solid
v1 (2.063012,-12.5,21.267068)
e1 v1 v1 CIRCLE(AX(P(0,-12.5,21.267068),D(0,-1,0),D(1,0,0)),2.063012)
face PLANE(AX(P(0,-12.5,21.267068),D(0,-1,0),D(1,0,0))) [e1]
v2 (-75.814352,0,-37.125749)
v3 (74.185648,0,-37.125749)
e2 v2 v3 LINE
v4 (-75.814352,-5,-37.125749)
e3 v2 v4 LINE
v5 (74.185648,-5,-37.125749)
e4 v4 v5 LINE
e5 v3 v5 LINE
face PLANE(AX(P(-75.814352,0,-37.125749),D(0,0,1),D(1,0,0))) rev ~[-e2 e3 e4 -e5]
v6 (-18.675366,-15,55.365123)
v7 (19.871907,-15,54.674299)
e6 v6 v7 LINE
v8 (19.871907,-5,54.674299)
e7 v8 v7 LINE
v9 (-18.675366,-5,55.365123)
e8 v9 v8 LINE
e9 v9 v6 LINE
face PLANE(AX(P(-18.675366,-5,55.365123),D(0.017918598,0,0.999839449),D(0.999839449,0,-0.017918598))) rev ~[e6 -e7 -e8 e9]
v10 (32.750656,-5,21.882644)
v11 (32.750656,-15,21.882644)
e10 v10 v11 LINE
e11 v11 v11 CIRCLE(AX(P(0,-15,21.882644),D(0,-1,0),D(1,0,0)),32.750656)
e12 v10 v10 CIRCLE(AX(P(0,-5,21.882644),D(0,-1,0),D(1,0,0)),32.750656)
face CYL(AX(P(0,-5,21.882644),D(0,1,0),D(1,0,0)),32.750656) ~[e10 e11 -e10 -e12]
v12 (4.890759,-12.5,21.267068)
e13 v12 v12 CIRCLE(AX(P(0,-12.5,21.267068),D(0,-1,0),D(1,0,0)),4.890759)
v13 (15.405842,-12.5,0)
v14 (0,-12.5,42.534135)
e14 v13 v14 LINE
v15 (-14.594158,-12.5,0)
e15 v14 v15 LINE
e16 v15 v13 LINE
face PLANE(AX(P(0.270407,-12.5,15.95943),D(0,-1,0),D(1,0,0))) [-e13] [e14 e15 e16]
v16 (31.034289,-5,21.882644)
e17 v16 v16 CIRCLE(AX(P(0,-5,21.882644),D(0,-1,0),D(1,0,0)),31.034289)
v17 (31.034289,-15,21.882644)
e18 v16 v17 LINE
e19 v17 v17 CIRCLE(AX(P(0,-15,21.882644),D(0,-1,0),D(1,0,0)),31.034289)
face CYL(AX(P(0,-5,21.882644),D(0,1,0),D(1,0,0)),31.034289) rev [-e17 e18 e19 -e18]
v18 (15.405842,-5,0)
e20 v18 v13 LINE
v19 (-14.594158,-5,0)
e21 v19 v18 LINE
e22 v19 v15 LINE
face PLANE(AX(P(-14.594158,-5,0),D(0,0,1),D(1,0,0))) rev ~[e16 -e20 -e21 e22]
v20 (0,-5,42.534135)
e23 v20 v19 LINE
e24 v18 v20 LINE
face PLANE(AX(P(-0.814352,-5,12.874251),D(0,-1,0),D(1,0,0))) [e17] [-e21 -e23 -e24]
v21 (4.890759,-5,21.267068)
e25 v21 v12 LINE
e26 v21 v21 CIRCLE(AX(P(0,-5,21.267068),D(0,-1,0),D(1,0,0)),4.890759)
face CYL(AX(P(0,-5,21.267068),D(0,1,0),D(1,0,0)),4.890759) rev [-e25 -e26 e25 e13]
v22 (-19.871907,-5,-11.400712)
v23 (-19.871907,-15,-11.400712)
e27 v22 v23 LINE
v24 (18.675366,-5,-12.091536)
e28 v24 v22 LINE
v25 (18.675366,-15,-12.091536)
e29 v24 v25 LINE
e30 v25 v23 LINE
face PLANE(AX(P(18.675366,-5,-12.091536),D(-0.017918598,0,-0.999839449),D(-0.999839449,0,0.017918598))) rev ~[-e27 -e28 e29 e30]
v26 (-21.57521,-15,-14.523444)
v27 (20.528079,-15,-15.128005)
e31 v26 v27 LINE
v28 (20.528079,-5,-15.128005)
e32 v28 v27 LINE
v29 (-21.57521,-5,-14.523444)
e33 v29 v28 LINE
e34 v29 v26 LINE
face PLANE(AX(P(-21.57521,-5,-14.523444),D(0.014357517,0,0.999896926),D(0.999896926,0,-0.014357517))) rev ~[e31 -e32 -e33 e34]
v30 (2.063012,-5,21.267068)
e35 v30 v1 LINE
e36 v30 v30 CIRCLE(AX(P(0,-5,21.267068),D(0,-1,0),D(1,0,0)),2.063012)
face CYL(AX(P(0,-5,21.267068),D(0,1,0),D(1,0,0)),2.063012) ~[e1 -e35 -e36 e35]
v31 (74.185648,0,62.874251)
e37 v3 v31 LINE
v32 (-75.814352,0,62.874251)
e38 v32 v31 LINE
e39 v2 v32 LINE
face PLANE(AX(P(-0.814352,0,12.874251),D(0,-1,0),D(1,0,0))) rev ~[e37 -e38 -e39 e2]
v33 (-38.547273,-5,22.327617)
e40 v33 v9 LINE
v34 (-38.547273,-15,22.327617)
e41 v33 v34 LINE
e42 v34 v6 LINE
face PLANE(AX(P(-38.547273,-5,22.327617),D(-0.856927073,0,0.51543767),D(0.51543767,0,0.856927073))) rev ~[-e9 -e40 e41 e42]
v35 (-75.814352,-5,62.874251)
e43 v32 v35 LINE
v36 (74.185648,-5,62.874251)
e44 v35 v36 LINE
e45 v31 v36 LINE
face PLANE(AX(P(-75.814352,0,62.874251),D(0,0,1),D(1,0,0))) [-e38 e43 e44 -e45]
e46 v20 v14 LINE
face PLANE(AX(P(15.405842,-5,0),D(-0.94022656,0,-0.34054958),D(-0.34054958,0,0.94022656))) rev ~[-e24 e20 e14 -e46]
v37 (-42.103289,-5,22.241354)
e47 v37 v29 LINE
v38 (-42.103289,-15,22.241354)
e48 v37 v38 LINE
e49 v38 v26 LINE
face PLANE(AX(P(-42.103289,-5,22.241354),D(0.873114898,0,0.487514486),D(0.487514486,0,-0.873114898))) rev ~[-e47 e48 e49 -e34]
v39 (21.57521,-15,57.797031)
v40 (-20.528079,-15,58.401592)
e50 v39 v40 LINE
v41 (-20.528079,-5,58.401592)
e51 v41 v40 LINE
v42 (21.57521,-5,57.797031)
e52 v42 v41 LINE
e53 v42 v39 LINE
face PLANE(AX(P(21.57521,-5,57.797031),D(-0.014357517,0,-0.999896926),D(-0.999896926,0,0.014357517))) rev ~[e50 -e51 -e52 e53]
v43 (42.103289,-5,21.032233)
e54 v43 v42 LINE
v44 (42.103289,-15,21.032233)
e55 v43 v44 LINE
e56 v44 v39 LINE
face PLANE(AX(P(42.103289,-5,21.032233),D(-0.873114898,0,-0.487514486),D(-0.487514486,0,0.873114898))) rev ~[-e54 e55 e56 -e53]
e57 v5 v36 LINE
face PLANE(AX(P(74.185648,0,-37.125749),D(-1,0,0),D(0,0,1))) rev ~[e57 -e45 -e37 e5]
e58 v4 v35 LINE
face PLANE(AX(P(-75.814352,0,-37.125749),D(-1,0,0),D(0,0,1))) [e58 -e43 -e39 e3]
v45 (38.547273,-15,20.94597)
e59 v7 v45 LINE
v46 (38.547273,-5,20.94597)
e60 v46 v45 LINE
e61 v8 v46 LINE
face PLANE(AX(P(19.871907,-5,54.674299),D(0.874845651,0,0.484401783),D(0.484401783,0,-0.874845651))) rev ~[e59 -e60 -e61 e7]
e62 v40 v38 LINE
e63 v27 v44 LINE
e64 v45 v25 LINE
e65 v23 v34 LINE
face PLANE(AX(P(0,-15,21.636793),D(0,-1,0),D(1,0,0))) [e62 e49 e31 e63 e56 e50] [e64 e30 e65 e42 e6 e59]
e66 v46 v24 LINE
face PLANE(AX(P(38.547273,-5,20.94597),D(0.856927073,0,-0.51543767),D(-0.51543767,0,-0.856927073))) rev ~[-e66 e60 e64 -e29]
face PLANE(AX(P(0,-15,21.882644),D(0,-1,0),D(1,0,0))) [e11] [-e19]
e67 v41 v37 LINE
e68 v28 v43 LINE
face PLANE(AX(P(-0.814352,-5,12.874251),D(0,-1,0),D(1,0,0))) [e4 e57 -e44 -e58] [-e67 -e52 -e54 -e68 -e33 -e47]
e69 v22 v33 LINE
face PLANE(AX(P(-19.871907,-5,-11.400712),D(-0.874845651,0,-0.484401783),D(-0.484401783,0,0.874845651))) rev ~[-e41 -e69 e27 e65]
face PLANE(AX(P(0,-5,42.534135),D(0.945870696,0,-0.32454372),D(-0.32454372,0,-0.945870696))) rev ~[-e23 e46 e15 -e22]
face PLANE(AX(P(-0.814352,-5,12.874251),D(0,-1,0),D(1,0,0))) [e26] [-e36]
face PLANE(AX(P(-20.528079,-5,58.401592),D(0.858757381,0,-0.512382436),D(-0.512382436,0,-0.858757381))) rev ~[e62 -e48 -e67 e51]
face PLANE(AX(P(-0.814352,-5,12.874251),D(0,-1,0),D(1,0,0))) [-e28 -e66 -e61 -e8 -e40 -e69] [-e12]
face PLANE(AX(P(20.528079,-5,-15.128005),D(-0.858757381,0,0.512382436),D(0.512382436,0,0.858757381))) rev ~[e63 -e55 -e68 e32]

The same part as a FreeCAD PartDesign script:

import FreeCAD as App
import Part
import Sketcher
from FreeCAD import Vector
Q = App.Units.Quantity


def add_polygon(sketch, points):
    """Adds a closed chain of lines whose ends are joined by coincident constraints."""
    first, n = sketch.GeometryCount, len(points)
    for a, b in zip(points, points[1:] + points[:1]):
        sketch.addGeometry(Part.LineSegment(App.Vector(*a, 0), App.Vector(*b, 0)), False)
    for i in range(n):
        sketch.addConstraint(Sketcher.Constraint("Coincident", first + i, 2, first + (i + 1) % n, 1))

doc = App.newDocument("Part")
body = doc.addObject("PartDesign::Body", "Body")

# Sketch on XZ plane
sketch1 = doc.addObject("Sketcher::SketchObject", "Sketch")
body.addObject(sketch1)
sketch1.AttachmentSupport = (doc.XZ_Plane, [""])
sketch1.MapMode = "FlatFace"
add_polygon(sketch1, [(-76, 63), (-76, -37), (74, -37), (74, 63)])  # lines 0-3
sketch1.addConstraint([
    Sketcher.Constraint("Vertical", 0),
    Sketcher.Constraint("Horizontal", 1),
    Sketcher.Constraint("Vertical", 2),
    Sketcher.Constraint("Horizontal", 3),
    Sketcher.Constraint("DistanceX", 1, 1, 1, 2, Q("150 mm")),
    Sketcher.Constraint("DistanceY", 0, 2, 0, 1, Q("100 mm")),
    Sketcher.Constraint("DistanceX", 0, 2, -1, 1, Q("75.814352 mm")),
    Sketcher.Constraint("DistanceY", 0, 2, -1, 1, Q("37.125749 mm")),
])
pad1 = doc.addObject("PartDesign::Pad", "Pad")
body.addObject(pad1)
pad1.Profile = sketch1
pad1.Length = 5

# Sketch on XZ plane
sketch2 = doc.addObject("Sketcher::SketchObject", "Sketch001")
body.addObject(sketch2)
sketch2.AttachmentSupport = (doc.XZ_Plane, [""])
sketch2.MapMode = "FlatFace"
sketch2.AttachmentOffset = App.Placement(Vector(0, 0, 5), App.Rotation())
add_polygon(sketch2, [(0, 42.5), (-14.6, 0), (15.4, 0)])  # lines 0-2
sketch2.addGeometry(Part.Circle(Vector(0, 21.3, 0), Vector(0, 0, 1), 4.9), False)  # 3
sketch2.addGeometry(Part.Circle(Vector(0, 21.3, 0), Vector(0, 0, 1), 2.1), False)  # 4
sketch2.addConstraint([
    Sketcher.Constraint("Horizontal", 1),
    Sketcher.Constraint("Coincident", 4, 3, 3, 3),
    Sketcher.Constraint("PointOnObject", 3, 3, -2),
    Sketcher.Constraint("PointOnObject", 0, 2, -1),
    Sketcher.Constraint("PointOnObject", 2, 2, -2),
    Sketcher.Constraint("DistanceX", 1, 1, 1, 2, Q("30 mm")),
    Sketcher.Constraint("Diameter", 3, Q("9.781518 mm")),
    Sketcher.Constraint("Diameter", 4, Q("4.126024 mm")),
    Sketcher.Constraint("Distance", 0, Q("44.968234 mm")),
    Sketcher.Constraint("Distance", 2, Q("45.238176 mm")),
    Sketcher.Constraint("DistanceY", -1, 1, 3, 3, Q("21.267068 mm")),
])
pad2 = doc.addObject("PartDesign::Pad", "Pad001")
body.addObject(pad2)
pad2.Profile = sketch2
pad2.Length = 7.5

# Sketch on XZ plane
sketch3 = doc.addObject("Sketcher::SketchObject", "Sketch002")
body.addObject(sketch3)
sketch3.AttachmentSupport = (doc.XZ_Plane, [""])
sketch3.MapMode = "FlatFace"
sketch3.AttachmentOffset = App.Placement(Vector(0, 0, 5), App.Rotation())
add_polygon(sketch3, [(-20.528079, 58.401592), (-42.103289, 22.241354), (-21.57521, -14.523444), (20.528079, -15.128005), (42.103289, 21.032233), (21.57521, 57.797031)])  # lines 0-5
add_polygon(sketch3, [(18.675366, -12.091536), (-19.871907, -11.400712), (-38.547273, 22.327617), (-18.675366, 55.365123), (19.871907, 54.674299), (38.547273, 20.94597)])  # lines 6-11
sketch3.addConstraint([
    Sketcher.Constraint("DistanceY", -1, 1, 9, 2, Q("54.674299 mm")),
    Sketcher.Constraint("DistanceX", 1, 2, 3, 2, Q("63.678499 mm")),
    Sketcher.Constraint("DistanceX", 0, 2, 4, 2, Q("63.678499 mm")),
    Sketcher.Constraint("Distance", 0, Q("42.10763 mm")),
    Sketcher.Constraint("Distance", 1, Q("42.107629 mm")),
    Sketcher.Constraint("Distance", 2, Q("42.107629 mm")),
    Sketcher.Constraint("Distance", 3, Q("42.10763 mm")),
    Sketcher.Constraint("Distance", 4, Q("42.107629 mm")),
    Sketcher.Constraint("Distance", 5, Q("42.107629 mm")),
    Sketcher.Constraint("DistanceX", 0, 2, -1, 1, Q("42.103289 mm")),
    Sketcher.Constraint("DistanceX", 1, 2, -1, 1, Q("21.57521 mm")),
    Sketcher.Constraint("DistanceX", -1, 1, 2, 2, Q("20.528079 mm")),
    Sketcher.Constraint("DistanceY", -1, 1, 4, 2, Q("57.797031 mm")),
    Sketcher.Constraint("DistanceY", -1, 1, 10, 2, Q("20.94597 mm")),
    Sketcher.Constraint("DistanceY", 1, 2, 6, 2, Q("3.122732 mm")),
    Sketcher.Constraint("DistanceX", 0, 2, 6, 2, Q("22.231382 mm")),
    Sketcher.Constraint("DistanceY", 6, 2, 7, 2, Q("33.728329 mm")),
    Sketcher.Constraint("DistanceY", 8, 2, 5, 2, Q("3.036469 mm")),
    Sketcher.Constraint("DistanceX", 6, 2, 8, 2, Q("1.196541 mm")),
    Sketcher.Constraint("DistanceX", 9, 2, 3, 2, Q("22.231382 mm")),
    Sketcher.Constraint("DistanceX", 7, 2, 9, 2, Q("58.41918 mm")),
    Sketcher.Constraint("DistanceX", 6, 2, 10, 2, Q("58.41918 mm")),
    Sketcher.Constraint("DistanceY", 2, 2, 11, 2, Q("3.036469 mm")),
    Sketcher.Constraint("Distance", 6, Q("38.553463 mm")),
])
pad3 = doc.addObject("PartDesign::Pad", "Pad002")
body.addObject(pad3)
pad3.Profile = sketch3
pad3.Length = 10

# Sketch on XZ plane
sketch4 = doc.addObject("Sketcher::SketchObject", "Sketch003")
body.addObject(sketch4)
sketch4.AttachmentSupport = (doc.XZ_Plane, [""])
sketch4.MapMode = "FlatFace"
sketch4.AttachmentOffset = App.Placement(Vector(0, 0, 5), App.Rotation())
sketch4.addGeometry([
    Part.Circle(Vector(0, 22, 0), Vector(0, 0, 1), 33),
    Part.Circle(Vector(0, 22, 0), Vector(0, 0, 1), 31),
], False)
sketch4.addConstraint([
    Sketcher.Constraint("Coincident", 1, 3, 0, 3),
    Sketcher.Constraint("PointOnObject", 0, 3, -2),
    Sketcher.Constraint("Diameter", 0, Q("65.501312 mm")),
    Sketcher.Constraint("Diameter", 1, Q("62.068578 mm")),
    Sketcher.Constraint("DistanceY", -1, 1, 0, 3, Q("21.882644 mm")),
])
pad4 = doc.addObject("PartDesign::Pad", "Pad003")
body.addObject(pad4)
pad4.Profile = sketch4
pad4.Length = 10

doc.recompute()
